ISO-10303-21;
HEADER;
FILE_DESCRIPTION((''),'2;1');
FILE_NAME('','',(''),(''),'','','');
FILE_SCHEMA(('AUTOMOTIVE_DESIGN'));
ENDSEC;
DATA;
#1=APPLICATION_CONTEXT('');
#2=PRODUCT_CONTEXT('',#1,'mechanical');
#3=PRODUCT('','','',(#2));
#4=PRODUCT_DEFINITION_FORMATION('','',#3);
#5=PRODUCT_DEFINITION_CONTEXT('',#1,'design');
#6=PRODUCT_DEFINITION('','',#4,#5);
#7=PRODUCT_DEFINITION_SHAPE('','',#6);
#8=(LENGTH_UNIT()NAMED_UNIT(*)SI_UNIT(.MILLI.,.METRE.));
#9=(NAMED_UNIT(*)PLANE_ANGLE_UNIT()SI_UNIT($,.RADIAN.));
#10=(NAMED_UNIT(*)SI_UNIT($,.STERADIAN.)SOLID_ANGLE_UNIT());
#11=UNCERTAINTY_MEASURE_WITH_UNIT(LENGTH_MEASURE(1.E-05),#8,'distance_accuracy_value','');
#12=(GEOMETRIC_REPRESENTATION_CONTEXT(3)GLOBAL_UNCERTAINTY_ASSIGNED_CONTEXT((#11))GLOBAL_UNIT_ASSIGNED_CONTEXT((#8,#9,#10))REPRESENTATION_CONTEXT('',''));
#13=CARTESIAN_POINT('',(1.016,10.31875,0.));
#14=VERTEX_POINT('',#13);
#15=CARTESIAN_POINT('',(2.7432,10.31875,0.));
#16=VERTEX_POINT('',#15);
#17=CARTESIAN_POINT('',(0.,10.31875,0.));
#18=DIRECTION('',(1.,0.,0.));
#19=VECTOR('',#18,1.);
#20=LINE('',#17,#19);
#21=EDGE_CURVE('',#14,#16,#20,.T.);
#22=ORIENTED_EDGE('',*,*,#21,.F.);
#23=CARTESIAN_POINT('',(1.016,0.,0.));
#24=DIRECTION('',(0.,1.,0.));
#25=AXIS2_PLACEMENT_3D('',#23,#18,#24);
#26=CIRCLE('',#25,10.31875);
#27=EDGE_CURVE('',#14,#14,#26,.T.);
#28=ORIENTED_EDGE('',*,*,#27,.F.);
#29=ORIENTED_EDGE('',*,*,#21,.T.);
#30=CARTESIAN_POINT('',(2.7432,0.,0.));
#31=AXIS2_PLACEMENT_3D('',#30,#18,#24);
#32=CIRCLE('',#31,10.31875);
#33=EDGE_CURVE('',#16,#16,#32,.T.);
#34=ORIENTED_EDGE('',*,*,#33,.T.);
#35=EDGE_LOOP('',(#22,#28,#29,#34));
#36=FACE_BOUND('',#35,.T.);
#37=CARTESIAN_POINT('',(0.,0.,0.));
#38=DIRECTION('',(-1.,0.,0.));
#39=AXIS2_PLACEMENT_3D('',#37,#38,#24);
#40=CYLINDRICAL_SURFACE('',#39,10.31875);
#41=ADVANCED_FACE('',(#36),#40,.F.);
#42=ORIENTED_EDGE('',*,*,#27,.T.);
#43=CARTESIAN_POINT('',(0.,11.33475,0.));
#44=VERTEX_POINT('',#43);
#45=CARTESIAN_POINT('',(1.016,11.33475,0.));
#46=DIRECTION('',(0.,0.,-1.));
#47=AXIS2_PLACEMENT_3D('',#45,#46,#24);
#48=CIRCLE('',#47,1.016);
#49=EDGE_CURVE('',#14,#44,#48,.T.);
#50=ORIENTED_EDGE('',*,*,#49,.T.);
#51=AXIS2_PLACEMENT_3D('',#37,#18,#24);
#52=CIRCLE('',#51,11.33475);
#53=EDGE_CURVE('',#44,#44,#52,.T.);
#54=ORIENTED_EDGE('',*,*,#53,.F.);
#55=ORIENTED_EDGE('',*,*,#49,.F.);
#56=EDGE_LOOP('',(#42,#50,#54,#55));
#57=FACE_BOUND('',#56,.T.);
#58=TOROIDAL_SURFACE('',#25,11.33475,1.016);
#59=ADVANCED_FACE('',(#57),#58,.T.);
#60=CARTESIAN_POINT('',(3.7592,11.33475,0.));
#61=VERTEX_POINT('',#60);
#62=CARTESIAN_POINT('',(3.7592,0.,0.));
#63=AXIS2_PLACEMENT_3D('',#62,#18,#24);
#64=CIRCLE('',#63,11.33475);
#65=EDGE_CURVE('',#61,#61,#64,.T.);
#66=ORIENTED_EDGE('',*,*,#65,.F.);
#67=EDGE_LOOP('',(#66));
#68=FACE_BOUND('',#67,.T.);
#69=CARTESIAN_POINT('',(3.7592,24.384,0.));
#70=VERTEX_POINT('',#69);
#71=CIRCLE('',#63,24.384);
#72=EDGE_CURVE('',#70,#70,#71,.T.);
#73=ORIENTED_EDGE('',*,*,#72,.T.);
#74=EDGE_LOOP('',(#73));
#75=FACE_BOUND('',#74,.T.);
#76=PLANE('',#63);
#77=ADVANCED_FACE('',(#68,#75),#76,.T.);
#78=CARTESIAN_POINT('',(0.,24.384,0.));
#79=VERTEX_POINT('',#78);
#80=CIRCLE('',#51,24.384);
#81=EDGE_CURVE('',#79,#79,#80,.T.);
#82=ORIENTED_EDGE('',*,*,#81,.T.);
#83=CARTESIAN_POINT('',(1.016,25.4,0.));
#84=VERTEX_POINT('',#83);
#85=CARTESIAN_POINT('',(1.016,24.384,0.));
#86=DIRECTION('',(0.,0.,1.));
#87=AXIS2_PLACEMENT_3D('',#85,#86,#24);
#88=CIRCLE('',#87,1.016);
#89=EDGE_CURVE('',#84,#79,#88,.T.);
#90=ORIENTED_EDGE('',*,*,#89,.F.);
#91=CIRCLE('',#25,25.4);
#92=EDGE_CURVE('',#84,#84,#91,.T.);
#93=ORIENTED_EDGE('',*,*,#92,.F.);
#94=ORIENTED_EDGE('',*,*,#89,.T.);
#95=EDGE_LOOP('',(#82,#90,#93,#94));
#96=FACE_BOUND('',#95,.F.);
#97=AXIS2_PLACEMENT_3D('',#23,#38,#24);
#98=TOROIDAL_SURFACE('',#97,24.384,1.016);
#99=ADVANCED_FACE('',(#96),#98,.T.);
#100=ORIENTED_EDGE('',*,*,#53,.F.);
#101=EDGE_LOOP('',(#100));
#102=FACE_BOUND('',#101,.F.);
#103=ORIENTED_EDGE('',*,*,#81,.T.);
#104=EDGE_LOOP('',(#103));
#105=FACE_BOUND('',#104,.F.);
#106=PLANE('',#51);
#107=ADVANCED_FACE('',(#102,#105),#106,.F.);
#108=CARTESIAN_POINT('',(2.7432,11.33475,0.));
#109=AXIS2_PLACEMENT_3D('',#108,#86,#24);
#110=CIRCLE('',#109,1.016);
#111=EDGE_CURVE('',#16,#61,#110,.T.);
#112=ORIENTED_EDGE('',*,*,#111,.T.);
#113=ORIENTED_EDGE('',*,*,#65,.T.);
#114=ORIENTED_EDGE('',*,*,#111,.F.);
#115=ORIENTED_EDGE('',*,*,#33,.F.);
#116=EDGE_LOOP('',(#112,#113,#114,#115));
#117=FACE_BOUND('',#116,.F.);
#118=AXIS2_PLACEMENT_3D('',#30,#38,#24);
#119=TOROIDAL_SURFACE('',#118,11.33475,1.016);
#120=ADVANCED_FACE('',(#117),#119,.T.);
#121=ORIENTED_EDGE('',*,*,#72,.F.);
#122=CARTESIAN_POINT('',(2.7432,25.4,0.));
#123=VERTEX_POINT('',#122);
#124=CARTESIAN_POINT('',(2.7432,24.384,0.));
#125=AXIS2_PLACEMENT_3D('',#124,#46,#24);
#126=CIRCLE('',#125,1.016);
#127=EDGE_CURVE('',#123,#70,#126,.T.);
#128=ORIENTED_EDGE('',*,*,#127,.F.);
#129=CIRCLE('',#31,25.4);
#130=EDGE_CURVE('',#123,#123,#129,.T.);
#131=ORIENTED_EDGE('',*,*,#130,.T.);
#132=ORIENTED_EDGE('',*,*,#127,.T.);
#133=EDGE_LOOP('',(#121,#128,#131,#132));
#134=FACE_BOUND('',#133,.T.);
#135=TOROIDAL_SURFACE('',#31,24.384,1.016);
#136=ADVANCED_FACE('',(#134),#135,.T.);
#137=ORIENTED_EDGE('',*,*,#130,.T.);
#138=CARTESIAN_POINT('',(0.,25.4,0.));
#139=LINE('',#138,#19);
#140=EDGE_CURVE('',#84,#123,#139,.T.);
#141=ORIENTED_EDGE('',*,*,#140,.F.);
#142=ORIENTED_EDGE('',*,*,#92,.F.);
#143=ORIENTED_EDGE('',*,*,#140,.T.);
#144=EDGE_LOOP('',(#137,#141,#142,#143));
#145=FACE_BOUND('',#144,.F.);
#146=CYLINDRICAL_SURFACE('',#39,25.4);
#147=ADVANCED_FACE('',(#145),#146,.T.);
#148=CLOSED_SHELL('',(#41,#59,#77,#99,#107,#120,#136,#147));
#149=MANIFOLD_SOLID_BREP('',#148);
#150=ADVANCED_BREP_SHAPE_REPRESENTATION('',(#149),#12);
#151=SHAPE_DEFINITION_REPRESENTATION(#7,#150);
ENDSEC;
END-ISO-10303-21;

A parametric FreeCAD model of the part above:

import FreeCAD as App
import Part
import Sketcher
Q = App.Units.Quantity


def edges_at(feature, points):
    """Names of the edges that pass closest to the given points."""
    edges = feature.Shape.Edges
    near = lambda p: min(range(len(edges)), key=lambda i: edges[i].distToShape(Part.Vertex(*p))[0])
    return sorted({f"Edge{near(p) + 1}" for p in points})

doc = App.newDocument("Part")
body = doc.addObject("PartDesign::Body", "Body")

sketch1 = body.newObject("Sketcher::SketchObject", "Sketch")
sketch1.AttachmentSupport = (doc.getObject("YZ_Plane"), [""])
sketch1.MapMode = "FlatFace"
sketch1.addGeometry([
    Part.Circle(App.Vector(0, 0, 0), App.Vector(0, 0, 1), 25.4),
    Part.Circle(App.Vector(0, 0, 0), App.Vector(0, 0, 1), 10.31875),
], False)
sketch1.addConstraint([
    Sketcher.Constraint("Coincident", 0, 3, -1, 1),
    Sketcher.Constraint("Coincident", 1, 3, -1, 1),
    Sketcher.Constraint("Diameter", 0, Q("2 in")),
    Sketcher.Constraint("Diameter", 1, Q("0.8125 in")),
])
pad1 = body.newObject("PartDesign::Pad", "Pad")
pad1.Profile = sketch1
pad1.Length = Q("0.148 in")
doc.recompute()

fillet = body.newObject("PartDesign::Fillet", "Fillet")
fillet.Base = (pad1, edges_at(pad1, [
    (3.759, -25.4, 0),
    (0, -25.4, 0),
    (3.759, -10.319, 0),
    (0, -10.319, 0),
]))
fillet.Radius = Q("0.04 in")

doc.recompute()
